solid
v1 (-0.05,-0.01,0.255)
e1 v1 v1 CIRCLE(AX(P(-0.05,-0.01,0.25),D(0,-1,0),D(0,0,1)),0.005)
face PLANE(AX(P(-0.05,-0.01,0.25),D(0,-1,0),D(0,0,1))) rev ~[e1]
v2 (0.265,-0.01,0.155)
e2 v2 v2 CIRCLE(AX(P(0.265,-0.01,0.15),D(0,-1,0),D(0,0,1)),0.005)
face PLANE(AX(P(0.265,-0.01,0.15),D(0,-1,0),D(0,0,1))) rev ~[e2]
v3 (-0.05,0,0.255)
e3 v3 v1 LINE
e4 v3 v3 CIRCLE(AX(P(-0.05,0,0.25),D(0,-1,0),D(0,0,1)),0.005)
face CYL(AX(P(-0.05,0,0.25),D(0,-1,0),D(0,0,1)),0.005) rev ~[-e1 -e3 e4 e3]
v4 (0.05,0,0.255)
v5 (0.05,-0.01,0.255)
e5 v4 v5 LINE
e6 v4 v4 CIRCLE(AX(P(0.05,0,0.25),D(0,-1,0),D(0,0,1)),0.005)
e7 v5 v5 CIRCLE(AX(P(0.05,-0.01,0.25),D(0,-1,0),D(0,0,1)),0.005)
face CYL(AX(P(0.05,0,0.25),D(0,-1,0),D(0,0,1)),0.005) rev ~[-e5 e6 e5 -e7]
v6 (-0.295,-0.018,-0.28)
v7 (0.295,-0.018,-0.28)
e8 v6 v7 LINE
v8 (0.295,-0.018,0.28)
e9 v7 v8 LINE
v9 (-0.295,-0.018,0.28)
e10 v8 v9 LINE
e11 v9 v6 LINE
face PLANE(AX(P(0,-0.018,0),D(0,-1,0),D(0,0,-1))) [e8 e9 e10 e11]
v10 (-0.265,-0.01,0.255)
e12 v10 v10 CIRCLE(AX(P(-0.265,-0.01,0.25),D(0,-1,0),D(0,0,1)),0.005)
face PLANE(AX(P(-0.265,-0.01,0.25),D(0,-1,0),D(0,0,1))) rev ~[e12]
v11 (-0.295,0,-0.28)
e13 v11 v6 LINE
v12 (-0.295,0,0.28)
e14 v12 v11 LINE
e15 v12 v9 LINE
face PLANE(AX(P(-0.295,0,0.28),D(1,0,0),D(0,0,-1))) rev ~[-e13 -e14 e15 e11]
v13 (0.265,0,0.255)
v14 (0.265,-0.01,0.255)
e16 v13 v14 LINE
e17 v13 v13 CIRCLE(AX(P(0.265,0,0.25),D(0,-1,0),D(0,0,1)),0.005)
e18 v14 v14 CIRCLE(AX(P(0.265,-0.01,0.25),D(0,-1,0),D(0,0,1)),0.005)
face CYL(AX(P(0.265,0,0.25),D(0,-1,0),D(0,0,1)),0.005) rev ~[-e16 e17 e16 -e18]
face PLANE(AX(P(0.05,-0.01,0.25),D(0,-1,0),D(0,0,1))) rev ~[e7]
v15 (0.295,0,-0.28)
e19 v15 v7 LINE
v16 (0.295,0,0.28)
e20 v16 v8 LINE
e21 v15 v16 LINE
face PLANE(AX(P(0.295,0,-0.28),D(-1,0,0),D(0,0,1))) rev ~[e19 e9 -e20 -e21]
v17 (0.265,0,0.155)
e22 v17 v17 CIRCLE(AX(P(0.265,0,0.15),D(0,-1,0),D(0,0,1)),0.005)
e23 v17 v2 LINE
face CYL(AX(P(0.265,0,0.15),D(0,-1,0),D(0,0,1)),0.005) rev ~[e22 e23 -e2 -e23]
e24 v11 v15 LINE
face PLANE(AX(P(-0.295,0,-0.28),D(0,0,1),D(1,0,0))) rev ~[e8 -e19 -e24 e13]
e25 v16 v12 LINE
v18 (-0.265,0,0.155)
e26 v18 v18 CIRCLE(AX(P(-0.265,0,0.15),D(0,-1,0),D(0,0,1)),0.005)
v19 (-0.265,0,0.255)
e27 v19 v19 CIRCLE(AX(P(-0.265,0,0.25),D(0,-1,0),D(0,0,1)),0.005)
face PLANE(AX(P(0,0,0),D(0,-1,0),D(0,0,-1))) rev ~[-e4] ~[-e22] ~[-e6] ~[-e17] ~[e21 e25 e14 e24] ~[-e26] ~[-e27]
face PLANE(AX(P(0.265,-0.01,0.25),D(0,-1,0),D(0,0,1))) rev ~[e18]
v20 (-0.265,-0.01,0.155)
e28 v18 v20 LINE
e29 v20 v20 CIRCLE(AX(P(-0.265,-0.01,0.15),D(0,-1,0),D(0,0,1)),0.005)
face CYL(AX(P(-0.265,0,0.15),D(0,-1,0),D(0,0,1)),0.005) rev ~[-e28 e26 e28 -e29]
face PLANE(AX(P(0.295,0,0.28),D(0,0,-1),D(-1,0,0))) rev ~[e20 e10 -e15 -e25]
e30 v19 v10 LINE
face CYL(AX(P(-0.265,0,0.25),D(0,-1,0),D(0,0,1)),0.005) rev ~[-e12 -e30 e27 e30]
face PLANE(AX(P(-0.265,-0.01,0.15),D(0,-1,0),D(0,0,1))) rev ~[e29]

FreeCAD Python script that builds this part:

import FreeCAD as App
import Part
import Sketcher
Q = App.Units.Quantity


def add_polygon(sketch, points):
    """Adds a closed chain of lines whose ends are joined by coincident constraints."""
    first, n = sketch.GeometryCount, len(points)
    for a, b in zip(points, points[1:] + points[:1]):
        sketch.addGeometry(Part.LineSegment(App.Vector(*a, 0), App.Vector(*b, 0)), False)
    for i in range(n):
        sketch.addConstraint(Sketcher.Constraint("Coincident", first + i, 2, first + (i + 1) % n, 1))

doc = App.newDocument("Part")
body = doc.addObject("PartDesign::Body", "Body")

# Sketch on XZ plane
sketch1 = body.newObject("Sketcher::SketchObject", "Sketch")
sketch1.AttachmentSupport = (doc.getObject("XZ_Plane"), [""])
sketch1.MapMode = "FlatFace"
add_polygon(sketch1, [(-0.3, 0.3), (-0.3, -0.3), (0.3, -0.3), (0.3, 0.3)])  # lines 0-3
sketch1.addConstraint([
    Sketcher.Constraint("Vertical", 0),
    Sketcher.Constraint("Horizontal", 1),
    Sketcher.Constraint("Vertical", 2),
    Sketcher.Constraint("Horizontal", 3),
    Sketcher.Constraint("Symmetric", 0, 2, 2, 2, -1, 1),
    Sketcher.Constraint("DistanceX", 0, 2, -1, 1, Q("0.295 mm")),
    Sketcher.Constraint("DistanceY", 0, 2, 0, 1, Q("0.56 mm")),
])
pad1 = body.newObject("PartDesign::Pad", "Pad")
pad1.Profile = sketch1
pad1.Length = 0.018

# Sketch on XZ plane
sketch2 = body.newObject("Sketcher::SketchObject", "Sketch001")
sketch2.AttachmentSupport = (doc.getObject("XZ_Plane"), [""])
sketch2.MapMode = "FlatFace"
sketch2.addGeometry(Part.Circle(App.Vector(-0.05, 0.25, 0), App.Vector(0, 0, 1), 0.005), False)
sketch2.addConstraint([
    Sketcher.Constraint("Diameter", 0, Q("0.01 mm")),
    Sketcher.Constraint("DistanceX", 0, 3, -1, 1, Q("0.05 mm")),
    Sketcher.Constraint("DistanceY", -1, 1, 0, 3, Q("0.25 mm")),
])
doc.recompute()
hole = body.newObject("PartDesign::Hole", "Hole")
hole.Profile = sketch2
hole.ThreadType = "None"
hole.Diameter = 0.01
hole.DepthType = "Dimension"
hole.Depth = 0.01
hole.DrillPoint = "Flat"
hole.Reversed = True

# Sketch on XZ plane
sketch3 = body.newObject("Sketcher::SketchObject", "Sketch002")
sketch3.AttachmentSupport = (doc.getObject("XZ_Plane"), [""])
sketch3.MapMode = "FlatFace"
sketch3.addGeometry(Part.Circle(App.Vector(0.05, 0.25, 0), App.Vector(0, 0, 1), 0.005), False)
sketch3.addConstraint([
    Sketcher.Constraint("Diameter", 0, Q("0.01 mm")),
    Sketcher.Constraint("DistanceX", -1, 1, 0, 3, Q("0.05 mm")),
    Sketcher.Constraint("DistanceY", -1, 1, 0, 3, Q("0.25 mm")),
])
doc.recompute()
hole2 = body.newObject("PartDesign::Hole", "Hole001")
hole2.Profile = sketch3
hole2.ThreadType = "None"
hole2.Diameter = 0.01
hole2.DepthType = "Dimension"
hole2.Depth = 0.01
hole2.DrillPoint = "Flat"
hole2.Reversed = True

# Sketch on XZ plane
sketch4 = body.newObject("Sketcher::SketchObject", "Sketch003")
sketch4.AttachmentSupport = (doc.getObject("XZ_Plane"), [""])
sketch4.MapMode = "FlatFace"
sketch4.addGeometry(Part.Circle(App.Vector(0.265, 0.25, 0), App.Vector(0, 0, 1), 0.005), False)
sketch4.addConstraint([
    Sketcher.Constraint("Diameter", 0, Q("0.01 mm")),
    Sketcher.Constraint("DistanceY", -1, 1, 0, 3, Q("0.25 mm")),
    Sketcher.Constraint("DistanceX", -1, 1, 0, 3, Q("0.265 mm")),
])
doc.recompute()
hole3 = body.newObject("PartDesign::Hole", "Hole002")
hole3.Profile = sketch4
hole3.ThreadType = "None"
hole3.Diameter = 0.01
hole3.DepthType = "Dimension"
hole3.Depth = 0.01
hole3.DrillPoint = "Flat"
hole3.Reversed = True

# Sketch on XZ plane
sketch5 = body.newObject("Sketcher::SketchObject", "Sketch004")
sketch5.AttachmentSupport = (doc.getObject("XZ_Plane"), [""])
sketch5.MapMode = "FlatFace"
sketch5.addGeometry(Part.Circle(App.Vector(0.265, 0.15, 0), App.Vector(0, 0, 1), 0.005), False)
sketch5.addConstraint([
    Sketcher.Constraint("Diameter", 0, Q("0.01 mm")),
    Sketcher.Constraint("DistanceY", -1, 1, 0, 3, Q("0.15 mm")),
    Sketcher.Constraint("DistanceX", -1, 1, 0, 3, Q("0.265 mm")),
])
doc.recompute()
hole4 = body.newObject("PartDesign::Hole", "Hole003")
hole4.Profile = sketch5
hole4.ThreadType = "None"
hole4.Diameter = 0.01
hole4.DepthType = "Dimension"
hole4.Depth = 0.01
hole4.DrillPoint = "Flat"
hole4.Reversed = True

# Sketch on XZ plane
sketch6 = body.newObject("Sketcher::SketchObject", "Sketch005")
sketch6.AttachmentSupport = (doc.getObject("XZ_Plane"), [""])
sketch6.MapMode = "FlatFace"
sketch6.addGeometry(Part.Circle(App.Vector(-0.265, 0.15, 0), App.Vector(0, 0, 1), 0.005), False)
sketch6.addConstraint([
    Sketcher.Constraint("Diameter", 0, Q("0.01 mm")),
    Sketcher.Constraint("DistanceY", -1, 1, 0, 3, Q("0.15 mm")),
    Sketcher.Constraint("DistanceX", 0, 3, -1, 1, Q("0.265 mm")),
])
doc.recompute()
hole5 = body.newObject("PartDesign::Hole", "Hole004")
hole5.Profile = sketch6
hole5.ThreadType = "None"
hole5.Diameter = 0.01
hole5.DepthType = "Dimension"
hole5.Depth = 0.01
hole5.DrillPoint = "Flat"
hole5.Reversed = True

# Sketch on XZ plane
sketch7 = body.newObject("Sketcher::SketchObject", "Sketch006")
sketch7.AttachmentSupport = (doc.getObject("XZ_Plane"), [""])
sketch7.MapMode = "FlatFace"
sketch7.addGeometry(Part.Circle(App.Vector(-0.265, 0.25, 0), App.Vector(0, 0, 1), 0.005), False)
sketch7.addConstraint([
    Sketcher.Constraint("Diameter", 0, Q("0.01 mm")),
    Sketcher.Constraint("DistanceY", -1, 1, 0, 3, Q("0.25 mm")),
    Sketcher.Constraint("DistanceX", 0, 3, -1, 1, Q("0.265 mm")),
])
doc.recompute()
hole6 = body.newObject("PartDesign::Hole", "Hole005")
hole6.Profile = sketch7
hole6.ThreadType = "None"
hole6.Diameter = 0.01
hole6.DepthType = "Dimension"
hole6.Depth = 0.01
hole6.DrillPoint = "Flat"
hole6.Reversed = True

doc.recompute()
